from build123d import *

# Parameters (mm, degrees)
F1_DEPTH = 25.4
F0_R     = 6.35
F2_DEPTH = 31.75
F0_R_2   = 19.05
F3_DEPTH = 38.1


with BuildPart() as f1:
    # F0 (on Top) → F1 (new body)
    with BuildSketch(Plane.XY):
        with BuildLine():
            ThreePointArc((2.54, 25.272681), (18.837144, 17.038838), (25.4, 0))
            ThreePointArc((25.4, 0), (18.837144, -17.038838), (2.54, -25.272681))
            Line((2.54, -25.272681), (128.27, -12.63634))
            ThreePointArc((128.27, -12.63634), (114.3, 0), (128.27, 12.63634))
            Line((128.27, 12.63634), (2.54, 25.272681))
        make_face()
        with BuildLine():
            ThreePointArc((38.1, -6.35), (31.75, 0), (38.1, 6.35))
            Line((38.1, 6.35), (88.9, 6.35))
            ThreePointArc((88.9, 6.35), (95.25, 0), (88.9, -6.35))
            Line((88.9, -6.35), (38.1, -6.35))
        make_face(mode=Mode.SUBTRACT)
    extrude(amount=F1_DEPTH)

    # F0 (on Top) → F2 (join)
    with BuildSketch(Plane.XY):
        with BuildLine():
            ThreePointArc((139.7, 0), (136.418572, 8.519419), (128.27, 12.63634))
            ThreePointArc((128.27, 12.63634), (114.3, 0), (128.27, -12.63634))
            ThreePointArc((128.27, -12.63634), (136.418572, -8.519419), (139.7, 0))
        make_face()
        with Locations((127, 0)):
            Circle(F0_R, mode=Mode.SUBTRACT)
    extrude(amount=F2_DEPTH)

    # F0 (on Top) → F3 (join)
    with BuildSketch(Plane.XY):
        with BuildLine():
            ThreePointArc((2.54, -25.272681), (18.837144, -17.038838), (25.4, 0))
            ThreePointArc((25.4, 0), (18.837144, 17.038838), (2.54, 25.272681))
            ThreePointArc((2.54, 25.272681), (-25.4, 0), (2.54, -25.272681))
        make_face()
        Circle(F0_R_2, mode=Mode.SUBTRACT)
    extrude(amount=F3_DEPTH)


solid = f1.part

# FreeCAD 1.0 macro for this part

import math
import FreeCAD as App
import Part
import Sketcher
from FreeCAD import Vector
Q = App.Units.Quantity

doc = App.newDocument("Part")
body = doc.addObject("PartDesign::Body", "Body")

# Sketch on XY plane
sketch1 = doc.addObject("Sketcher::SketchObject", "Sketch")
body.addObject(sketch1)
sketch1.AttachmentSupport = (doc.XY_Plane, [""])
sketch1.MapMode = "FlatFace"
sketch1.addGeometry(Part.ArcOfCircle(Part.Circle(Vector(0, 0, 0), Vector(0, 0, 1), 25), math.radians(0), math.radians(84)), False)
sketch1.addGeometry(Part.ArcOfCircle(Part.Circle(Vector(0, 0, 0), Vector(0, 0, 1), 25), math.radians(-84), math.radians(0)), False)
sketch1.addGeometry(Part.LineSegment(Vector(3, -25, 0), Vector(128, -13, 0)), False)
sketch1.addGeometry(Part.ArcOfCircle(Part.Circle(Vector(127, 0, 0), Vector(0, 0, 1), 13), math.radians(84), math.radians(276)), False)
sketch1.addGeometry(Part.LineSegment(Vector(128, 13, 0), Vector(3, 25, 0)), False)
sketch1.addGeometry(Part.LineSegment(Vector(89, -6, 0), Vector(38, -6, 0)), False)
sketch1.addGeometry(Part.ArcOfCircle(Part.Circle(Vector(38, 0, 0), Vector(0, 0, 1), 6), math.radians(90), math.radians(270)), False)
sketch1.addGeometry(Part.LineSegment(Vector(38, 6, 0), Vector(89, 6, 0)), False)
sketch1.addGeometry(Part.ArcOfCircle(Part.Circle(Vector(89, 0, 0), Vector(0, 0, 1), 6), math.radians(-90), math.radians(90)), False)
sketch1.addConstraint(Sketcher.Constraint("Tangent", 0, 1, 1, 2))
sketch1.addConstraint(Sketcher.Constraint("Tangent", 1, 1, 2, 1))
sketch1.addConstraint(Sketcher.Constraint("Tangent", 2, 2, 3, 2))
sketch1.addConstraint(Sketcher.Constraint("Tangent", 3, 1, 4, 1))
sketch1.addConstraint(Sketcher.Constraint("Tangent", 4, 2, 0, 2))
sketch1.addConstraint(Sketcher.Constraint("Tangent", 5, 2, 6, 2))
sketch1.addConstraint(Sketcher.Constraint("Tangent", 6, 1, 7, 1))
sketch1.addConstraint(Sketcher.Constraint("Tangent", 7, 2, 8, 2))
sketch1.addConstraint(Sketcher.Constraint("Tangent", 8, 1, 5, 1))
sketch1.addConstraint(Sketcher.Constraint("Horizontal", 5))
sketch1.addConstraint(Sketcher.Constraint("Horizontal", 7))
sketch1.addConstraint(Sketcher.Constraint("Coincident", 0, 3, -1, 1))
sketch1.addConstraint(Sketcher.Constraint("Equal", 0, 1))
sketch1.addConstraint(Sketcher.Constraint("PointOnObject", 3, 3, -1))
sketch1.addConstraint(Sketcher.Constraint("PointOnObject", 6, 3, -1))
sketch1.addConstraint(Sketcher.Constraint("PointOnObject", 0, 1, -1))
sketch1.addConstraint(Sketcher.Constraint("Radius", 0, Q("1 in")))
sketch1.addConstraint(Sketcher.Constraint("Radius", 3, Q("0.5 in")))
sketch1.addConstraint(Sketcher.Constraint("DistanceX", 5, 2, 5, 1, Q("2 in")))
sketch1.addConstraint(Sketcher.Constraint("Radius", 6, Q("0.25 in")))
sketch1.addConstraint(Sketcher.Constraint("DistanceX", -1, 1, 3, 3, Q("5 in")))
sketch1.addConstraint(Sketcher.Constraint("DistanceX", -1, 1, 6, 3, Q("1.5 in")))
pad1 = doc.addObject("PartDesign::Pad", "Pad")
body.addObject(pad1)
pad1.Profile = sketch1
pad1.Length = Q("1 in")

# Sketch on XY plane
sketch2 = doc.addObject("Sketcher::SketchObject", "Sketch001")
body.addObject(sketch2)
sketch2.AttachmentSupport = (doc.XY_Plane, [""])
sketch2.MapMode = "FlatFace"
sketch2.addGeometry(Part.ArcOfCircle(Part.Circle(Vector(127, 0, 0), Vector(0, 0, 1), 13), math.radians(0), math.radians(84)), False)
sketch2.addGeometry(Part.ArcOfCircle(Part.Circle(Vector(127, 0, 0), Vector(0, 0, 1), 13), math.radians(84), math.radians(276)), False)
sketch2.addGeometry(Part.ArcOfCircle(Part.Circle(Vector(127, 0, 0), Vector(0, 0, 1), 13), math.radians(-84), math.radians(0)), False)
sketch2.addGeometry(Part.Circle(Vector(127, 0, 0), Vector(0, 0, 1), 6), False)
sketch2.addConstraint(Sketcher.Constraint("Tangent", 0, 2, 1, 1))
sketch2.addConstraint(Sketcher.Constraint("Tangent", 1, 2, 2, 1))
sketch2.addConstraint(Sketcher.Constraint("Tangent", 2, 2, 0, 1))
sketch2.addConstraint(Sketcher.Constraint("Coincident", 3, 3, 0, 3))
sketch2.addConstraint(Sketcher.Constraint("Symmetric", 0, 2, 1, 2, -1))
sketch2.addConstraint(Sketcher.Constraint("PointOnObject", 2, 2, -1))
sketch2.addConstraint(Sketcher.Constraint("Diameter", 3, Q("0.5 in")))
sketch2.addConstraint(Sketcher.Constraint("Radius", 0, Q("0.5 in")))
sketch2.addConstraint(Sketcher.Constraint("DistanceX", -1, 1, 0, 3, Q("5 in")))
sketch2.addConstraint(Sketcher.Constraint("DistanceX", -1, 1, 0, 2, Q("5.05 in")))
pad2 = doc.addObject("PartDesign::Pad", "Pad001")
body.addObject(pad2)
pad2.Profile = sketch2
pad2.Length = Q("1.25 in")

# Sketch on XY plane
sketch3 = doc.addObject("Sketcher::SketchObject", "Sketch002")
body.addObject(sketch3)
sketch3.AttachmentSupport = (doc.XY_Plane, [""])
sketch3.MapMode = "FlatFace"
sketch3.addGeometry(Part.ArcOfCircle(Part.Circle(Vector(0, 0, 0), Vector(0, 0, 1), 25), math.radians(-84), math.radians(0)), False)
sketch3.addGeometry(Part.ArcOfCircle(Part.Circle(Vector(0, 0, 0), Vector(0, 0, 1), 25), math.radians(0), math.radians(84)), False)
sketch3.addGeometry(Part.ArcOfCircle(Part.Circle(Vector(0, 0, 0), Vector(0, 0, 1), 25), math.radians(84), math.radians(276)), False)
sketch3.addGeometry(Part.Circle(Vector(0, 0, 0), Vector(0, 0, 1), 19), False)
sketch3.addConstraint(Sketcher.Constraint("Tangent", 0, 2, 1, 1))
sketch3.addConstraint(Sketcher.Constraint("Tangent", 1, 2, 2, 1))
sketch3.addConstraint(Sketcher.Constraint("Tangent", 2, 2, 0, 1))
sketch3.addConstraint(Sketcher.Constraint("Coincident", 0, 3, -1, 1))
sketch3.addConstraint(Sketcher.Constraint("Coincident", 3, 3, -1, 1))
sketch3.addConstraint(Sketcher.Constraint("PointOnObject", 0, 2, -1))
sketch3.addConstraint(Sketcher.Constraint("Vertical", 1, 2, 2, 2))
sketch3.addConstraint(Sketcher.Constraint("Radius", 0, Q("1 in")))
sketch3.addConstraint(Sketcher.Constraint("Diameter", 3, Q("1.5 in")))
sketch3.addConstraint(Sketcher.Constraint("DistanceX", -1, 1, 1, 2, Q("0.1 in")))
pad3 = doc.addObject("PartDesign::Pad", "Pad002")
body.addObject(pad3)
pad3.Profile = sketch3
pad3.Length = Q("1.5 in")

doc.recompute()
